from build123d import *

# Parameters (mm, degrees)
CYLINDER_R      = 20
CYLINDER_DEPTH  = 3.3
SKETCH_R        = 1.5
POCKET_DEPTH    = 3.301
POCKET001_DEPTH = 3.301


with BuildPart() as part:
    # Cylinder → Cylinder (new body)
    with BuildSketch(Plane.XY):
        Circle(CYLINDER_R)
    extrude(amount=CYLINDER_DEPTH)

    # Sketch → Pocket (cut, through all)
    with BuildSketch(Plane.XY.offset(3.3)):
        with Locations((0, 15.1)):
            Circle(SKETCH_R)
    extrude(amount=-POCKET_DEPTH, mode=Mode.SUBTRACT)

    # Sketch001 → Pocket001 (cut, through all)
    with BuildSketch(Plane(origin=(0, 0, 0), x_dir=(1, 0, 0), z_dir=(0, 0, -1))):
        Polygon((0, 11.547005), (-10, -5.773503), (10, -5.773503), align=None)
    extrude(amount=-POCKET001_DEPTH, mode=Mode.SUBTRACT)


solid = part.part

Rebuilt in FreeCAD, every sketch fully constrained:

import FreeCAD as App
import Part
import Sketcher
Q = App.Units.Quantity

doc = App.newDocument("Part")
params = doc.addObject("Spreadsheet::Sheet", "Params")
for row, (alias, value) in enumerate([
    ("sketch1_diameter", "40 mm"),
    ("pad1_length", "3.3 mm"),
    ("sketch2_diameter", "3 mm"),
    ("sketch3_width", "20 mm"),
], start=1):
    params.set(f"A{row}", alias)
    params.set(f"B{row}", "=" + value)
    params.setAlias(f"B{row}", alias)

body = doc.addObject("PartDesign::Body", "Body")

sketch1 = body.newObject("Sketcher::SketchObject", "Sketch")
sketch1.AttachmentSupport = (doc.getObject("XY_Plane"), [""])
sketch1.MapMode = "FlatFace"
sketch1.addGeometry(Part.Circle(App.Vector(0, 0, 0), App.Vector(0, 0, 1), 20), False)
sketch1.addConstraint([
    Sketcher.Constraint("Coincident", 0, 3, -1, 1),
    Sketcher.Constraint("Diameter", 0, Q("40 mm")),
])
sketch1.setExpression("Constraints[1]", "Params.sketch1_diameter")
pad1 = body.newObject("PartDesign::Pad", "Pad")
pad1.Profile = sketch1
pad1.setExpression("Length", "Params.pad1_length")

sketch2 = body.newObject("Sketcher::SketchObject", "Sketch001")
sketch2.AttachmentSupport = (doc.getObject("XY_Plane"), [""])
sketch2.MapMode = "FlatFace"
sketch2.AttachmentOffset = App.Placement(App.Vector(0, 0, 3.3), App.Rotation())
sketch2.addGeometry(Part.Circle(App.Vector(0, 15.1, 0), App.Vector(0, 0, 1), 1.5), False)
sketch2.addConstraint([
    Sketcher.Constraint("PointOnObject", 0, 3, -2),
    Sketcher.Constraint("Diameter", 0, Q("3 mm")),
    Sketcher.Constraint("DistanceY", -1, 1, 0, 3, Q("15.1 mm")),
])
sketch2.setExpression("Constraints[1]", "Params.sketch2_diameter")
pocket1 = body.newObject("PartDesign::Pocket", "Pocket")
pocket1.Profile = sketch2
pocket1.Type = "ThroughAll"

sketch3 = body.newObject("Sketcher::SketchObject", "Sketch002")
sketch3.AttachmentSupport = (doc.getObject("XY_Plane"), [""])
sketch3.MapMode = "FlatFace"
sketch3.addGeometry([
    Part.LineSegment(App.Vector(0, -11.547005, 0), App.Vector(-10, 5.773503, 0)),
    Part.LineSegment(App.Vector(-10, 5.773503, 0), App.Vector(10, 5.773503, 0)),
    Part.LineSegment(App.Vector(10, 5.773503, 0), App.Vector(0, -11.547005, 0)),
], False)
sketch3.addConstraint([
    Sketcher.Constraint("Coincident", 0, 2, 1, 1),
    Sketcher.Constraint("Coincident", 1, 2, 2, 1),
    Sketcher.Constraint("Coincident", 2, 2, 0, 1),
    Sketcher.Constraint("Horizontal", 1),
    Sketcher.Constraint("PointOnObject", 2, 2, -2),
    Sketcher.Constraint("Equal", 0, 2),
    Sketcher.Constraint("DistanceX", 1, 1, 1, 2, Q("20 mm")),
    Sketcher.Constraint("Angle", 0, Q("120 deg")),
    Sketcher.Constraint("DistanceY", -1, 1, 0, 2, Q("5.773503 mm")),
])
sketch3.setExpression("Constraints[6]", "Params.sketch3_width")
pocket2 = body.newObject("PartDesign::Pocket", "Pocket001")
pocket2.Profile = sketch3
pocket2.Type = "ThroughAll"
pocket2.Reversed = True

doc.recompute()
